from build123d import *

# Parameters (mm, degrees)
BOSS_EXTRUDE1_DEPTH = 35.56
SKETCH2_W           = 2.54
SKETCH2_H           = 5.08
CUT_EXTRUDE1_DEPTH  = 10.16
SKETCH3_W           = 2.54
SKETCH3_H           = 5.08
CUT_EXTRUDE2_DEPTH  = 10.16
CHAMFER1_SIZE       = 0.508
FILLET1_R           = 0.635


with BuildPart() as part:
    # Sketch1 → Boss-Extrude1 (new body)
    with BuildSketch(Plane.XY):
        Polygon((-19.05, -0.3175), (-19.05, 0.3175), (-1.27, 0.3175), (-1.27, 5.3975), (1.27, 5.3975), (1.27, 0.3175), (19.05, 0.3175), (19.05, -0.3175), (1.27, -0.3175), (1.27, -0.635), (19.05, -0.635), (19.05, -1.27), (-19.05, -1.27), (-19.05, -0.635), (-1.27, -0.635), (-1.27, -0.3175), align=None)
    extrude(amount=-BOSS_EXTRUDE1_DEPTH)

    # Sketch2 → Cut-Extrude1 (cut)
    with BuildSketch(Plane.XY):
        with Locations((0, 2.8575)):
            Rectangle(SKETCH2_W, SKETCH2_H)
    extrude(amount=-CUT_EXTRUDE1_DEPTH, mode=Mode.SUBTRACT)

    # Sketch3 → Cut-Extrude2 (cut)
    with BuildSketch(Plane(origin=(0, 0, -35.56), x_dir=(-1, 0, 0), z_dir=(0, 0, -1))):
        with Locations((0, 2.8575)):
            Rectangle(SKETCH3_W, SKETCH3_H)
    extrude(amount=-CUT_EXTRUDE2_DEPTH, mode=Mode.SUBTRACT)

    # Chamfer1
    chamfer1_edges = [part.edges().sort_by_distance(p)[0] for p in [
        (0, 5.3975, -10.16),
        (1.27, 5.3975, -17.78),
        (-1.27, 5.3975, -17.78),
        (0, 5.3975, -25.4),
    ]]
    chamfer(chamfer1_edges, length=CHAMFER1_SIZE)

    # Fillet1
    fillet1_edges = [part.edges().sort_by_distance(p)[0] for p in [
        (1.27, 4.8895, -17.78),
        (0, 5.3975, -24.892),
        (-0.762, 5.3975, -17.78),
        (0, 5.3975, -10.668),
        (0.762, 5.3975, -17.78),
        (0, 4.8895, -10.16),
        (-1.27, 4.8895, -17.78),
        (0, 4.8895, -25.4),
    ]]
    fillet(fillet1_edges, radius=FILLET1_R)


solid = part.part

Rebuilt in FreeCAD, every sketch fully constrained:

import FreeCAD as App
import Part
import Sketcher
Q = App.Units.Quantity


def edges_at(feature, points):
    """Names of the edges that pass closest to the given points."""
    edges = feature.Shape.Edges
    near = lambda p: min(range(len(edges)), key=lambda i: edges[i].distToShape(Part.Vertex(*p))[0])
    return sorted({f"Edge{near(p) + 1}" for p in points})


def add_polygon(sketch, points):
    """Adds a closed chain of lines whose ends are joined by coincident constraints."""
    first, n = sketch.GeometryCount, len(points)
    for a, b in zip(points, points[1:] + points[:1]):
        sketch.addGeometry(Part.LineSegment(App.Vector(*a, 0), App.Vector(*b, 0)), False)
    for i in range(n):
        sketch.addConstraint(Sketcher.Constraint("Coincident", first + i, 2, first + (i + 1) % n, 1))

doc = App.newDocument("Part")
params = doc.addObject("Spreadsheet::Sheet", "Params")
for row, (alias, value) in enumerate([
    ("sketch1_width", "0.7 in"),
    ("sketch1_width2", "1.5 in"),
    ("sketch1_height", "0.2 in"),
    ("sketch1_height2", "0.025 in"),
    ("pad1_length", "1.4 in"),
    ("sketch2_width", "0.1 in"),
    ("sketch2_height", "0.2 in"),
    ("pocket1_length", "0.4 in"),
    ("sketch3_width", "0.1 in"),
    ("sketch3_height", "0.2 in"),
    ("pocket2_length", "0.4 in"),
    ("chamfer_size", "0.02 in"),
    ("fillet_radius", "0.025 in"),
], start=1):
    params.set(f"A{row}", alias)
    params.set(f"B{row}", "=" + value)
    params.setAlias(f"B{row}", alias)

body = doc.addObject("PartDesign::Body", "Body")

sketch1 = doc.addObject("Sketcher::SketchObject", "Sketch")
body.addObject(sketch1)
sketch1.AttachmentSupport = (doc.XY_Plane, [""])
sketch1.MapMode = "FlatFace"
add_polygon(sketch1, [(-19.05, 0.32), (-19.05, -0.32), (-1.27, -0.32), (-1.27, -0.64), (-19.05, -0.64), (-19.05, -1.27), (19.05, -1.27), (19.05, -0.64), (1.27, -0.64), (1.27, -0.32), (19.05, -0.32), (19.05, 0.32), (1.27, 0.32), (1.27, 5.4), (-1.27, 5.4), (-1.27, 0.32)])
sketch1.addConstraint([
    Sketcher.Constraint("Vertical", 0),
    Sketcher.Constraint("Horizontal", 1),
    Sketcher.Constraint("Vertical", 2),
    Sketcher.Constraint("Horizontal", 3),
    Sketcher.Constraint("Vertical", 4),
    Sketcher.Constraint("Horizontal", 5),
    Sketcher.Constraint("Vertical", 6),
    Sketcher.Constraint("Horizontal", 7),
    Sketcher.Constraint("Vertical", 8),
    Sketcher.Constraint("Horizontal", 9),
    Sketcher.Constraint("Vertical", 10),
    Sketcher.Constraint("Horizontal", 11),
    Sketcher.Constraint("Vertical", 12),
    Sketcher.Constraint("Horizontal", 13),
    Sketcher.Constraint("Vertical", 14),
    Sketcher.Constraint("Horizontal", 15),
    Sketcher.Constraint("Symmetric", 0, 2, 10, 2, -1, 1),
    Sketcher.Constraint("Symmetric", 8, 2, 14, 2, -1, 1),
    Sketcher.Constraint("Symmetric", 3, 2, 6, 2, -2),
    Sketcher.Constraint("Symmetric", 1, 2, 8, 2, -2),
    Sketcher.Constraint("Vertical", 0, 2, 3, 2),
    Sketcher.Constraint("Vertical", 8, 2, 11, 2),
    Sketcher.Constraint("Equal", 0, 4),
    Sketcher.Constraint("DistanceX", 1, 1, 1, 2, Q("0.7 in")),
    Sketcher.Constraint("DistanceX", 5, 1, 5, 2, Q("1.5 in")),
    Sketcher.Constraint("DistanceY", 12, 1, 12, 2, Q("0.2 in")),
    Sketcher.Constraint("DistanceY", 0, 2, 0, 1, Q("0.025 in")),
    Sketcher.Constraint("DistanceY", 4, 2, -1, 1, Q("0.05 in")),
])
sketch1.setExpression("Constraints[39]", "Params.sketch1_width")
sketch1.setExpression("Constraints[40]", "Params.sketch1_width2")
sketch1.setExpression("Constraints[41]", "Params.sketch1_height")
sketch1.setExpression("Constraints[42]", "Params.sketch1_height2")
pad1 = doc.addObject("PartDesign::Pad", "Pad")
body.addObject(pad1)
pad1.Profile = sketch1
pad1.setExpression("Length", "Params.pad1_length")
pad1.Reversed = True

sketch2 = doc.addObject("Sketcher::SketchObject", "Sketch001")
body.addObject(sketch2)
sketch2.AttachmentSupport = (doc.XY_Plane, [""])
sketch2.MapMode = "FlatFace"
add_polygon(sketch2, [(-1.3, 5.4), (-1.3, 0.3), (1.3, 0.3), (1.3, 5.4)])
sketch2.addConstraint([
    Sketcher.Constraint("Vertical", 0),
    Sketcher.Constraint("Horizontal", 1),
    Sketcher.Constraint("Vertical", 2),
    Sketcher.Constraint("Horizontal", 3),
    Sketcher.Constraint("DistanceX", 1, 1, 1, 2, Q("0.1 in")),
    Sketcher.Constraint("DistanceY", 0, 2, 0, 1, Q("0.2 in")),
    Sketcher.Constraint("DistanceX", 0, 2, -1, 1, Q("0.05 in")),
    Sketcher.Constraint("DistanceY", -1, 1, 0, 2, Q("0.0125 in")),
])
sketch2.setExpression("Constraints[8]", "Params.sketch2_width")
sketch2.setExpression("Constraints[9]", "Params.sketch2_height")
pocket1 = doc.addObject("PartDesign::Pocket", "Pocket")
body.addObject(pocket1)
pocket1.Profile = sketch2
pocket1.setExpression("Length", "Params.pocket1_length")

sketch3 = doc.addObject("Sketcher::SketchObject", "Sketch002")
body.addObject(sketch3)
sketch3.AttachmentSupport = (doc.XY_Plane, [""])
sketch3.MapMode = "FlatFace"
sketch3.AttachmentOffset = App.Placement(App.Vector(0, 0, -1.4 * 25.4), App.Rotation())
add_polygon(sketch3, [(1.3, 5.4), (1.3, 0.3), (-1.3, 0.3), (-1.3, 5.4)])
sketch3.addConstraint([
    Sketcher.Constraint("Vertical", 0),
    Sketcher.Constraint("Horizontal", 1),
    Sketcher.Constraint("Vertical", 2),
    Sketcher.Constraint("Horizontal", 3),
    Sketcher.Constraint("DistanceX", 1, 2, 1, 1, Q("0.1 in")),
    Sketcher.Constraint("DistanceY", 0, 2, 0, 1, Q("0.2 in")),
    Sketcher.Constraint("DistanceX", -1, 1, 0, 2, Q("0.05 in")),
    Sketcher.Constraint("DistanceY", -1, 1, 0, 2, Q("0.0125 in")),
])
sketch3.setExpression("Constraints[8]", "Params.sketch3_width")
sketch3.setExpression("Constraints[9]", "Params.sketch3_height")
pocket2 = doc.addObject("PartDesign::Pocket", "Pocket001")
body.addObject(pocket2)
pocket2.Profile = sketch3
pocket2.setExpression("Length", "Params.pocket2_length")
pocket2.Reversed = True
doc.recompute()

chamfer = doc.addObject("PartDesign::Chamfer", "Chamfer")
body.addObject(chamfer)
chamfer.Base = (pocket2, edges_at(pocket2, [
    (0, 5.397, -10.16),
    (1.27, 5.397, -17.78),
    (-1.27, 5.397, -17.78),
    (0, 5.397, -25.4),
]))
chamfer.setExpression("Size", "Params.chamfer_size")
doc.recompute()

fillet = doc.addObject("PartDesign::Fillet", "Fillet")
body.addObject(fillet)
fillet.Base = (chamfer, edges_at(chamfer, [
    (1.27, 4.889, -17.78),
    (0, 5.397, -24.892),
    (-0.762, 5.397, -17.78),
    (0, 5.397, -10.668),
    (0.762, 5.397, -17.78),
    (0, 4.889, -10.16),
    (-1.27, 4.889, -17.78),
    (0, 4.889, -25.4),
]))
fillet.setExpression("Radius", "Params.fillet_radius")

doc.recompute()
